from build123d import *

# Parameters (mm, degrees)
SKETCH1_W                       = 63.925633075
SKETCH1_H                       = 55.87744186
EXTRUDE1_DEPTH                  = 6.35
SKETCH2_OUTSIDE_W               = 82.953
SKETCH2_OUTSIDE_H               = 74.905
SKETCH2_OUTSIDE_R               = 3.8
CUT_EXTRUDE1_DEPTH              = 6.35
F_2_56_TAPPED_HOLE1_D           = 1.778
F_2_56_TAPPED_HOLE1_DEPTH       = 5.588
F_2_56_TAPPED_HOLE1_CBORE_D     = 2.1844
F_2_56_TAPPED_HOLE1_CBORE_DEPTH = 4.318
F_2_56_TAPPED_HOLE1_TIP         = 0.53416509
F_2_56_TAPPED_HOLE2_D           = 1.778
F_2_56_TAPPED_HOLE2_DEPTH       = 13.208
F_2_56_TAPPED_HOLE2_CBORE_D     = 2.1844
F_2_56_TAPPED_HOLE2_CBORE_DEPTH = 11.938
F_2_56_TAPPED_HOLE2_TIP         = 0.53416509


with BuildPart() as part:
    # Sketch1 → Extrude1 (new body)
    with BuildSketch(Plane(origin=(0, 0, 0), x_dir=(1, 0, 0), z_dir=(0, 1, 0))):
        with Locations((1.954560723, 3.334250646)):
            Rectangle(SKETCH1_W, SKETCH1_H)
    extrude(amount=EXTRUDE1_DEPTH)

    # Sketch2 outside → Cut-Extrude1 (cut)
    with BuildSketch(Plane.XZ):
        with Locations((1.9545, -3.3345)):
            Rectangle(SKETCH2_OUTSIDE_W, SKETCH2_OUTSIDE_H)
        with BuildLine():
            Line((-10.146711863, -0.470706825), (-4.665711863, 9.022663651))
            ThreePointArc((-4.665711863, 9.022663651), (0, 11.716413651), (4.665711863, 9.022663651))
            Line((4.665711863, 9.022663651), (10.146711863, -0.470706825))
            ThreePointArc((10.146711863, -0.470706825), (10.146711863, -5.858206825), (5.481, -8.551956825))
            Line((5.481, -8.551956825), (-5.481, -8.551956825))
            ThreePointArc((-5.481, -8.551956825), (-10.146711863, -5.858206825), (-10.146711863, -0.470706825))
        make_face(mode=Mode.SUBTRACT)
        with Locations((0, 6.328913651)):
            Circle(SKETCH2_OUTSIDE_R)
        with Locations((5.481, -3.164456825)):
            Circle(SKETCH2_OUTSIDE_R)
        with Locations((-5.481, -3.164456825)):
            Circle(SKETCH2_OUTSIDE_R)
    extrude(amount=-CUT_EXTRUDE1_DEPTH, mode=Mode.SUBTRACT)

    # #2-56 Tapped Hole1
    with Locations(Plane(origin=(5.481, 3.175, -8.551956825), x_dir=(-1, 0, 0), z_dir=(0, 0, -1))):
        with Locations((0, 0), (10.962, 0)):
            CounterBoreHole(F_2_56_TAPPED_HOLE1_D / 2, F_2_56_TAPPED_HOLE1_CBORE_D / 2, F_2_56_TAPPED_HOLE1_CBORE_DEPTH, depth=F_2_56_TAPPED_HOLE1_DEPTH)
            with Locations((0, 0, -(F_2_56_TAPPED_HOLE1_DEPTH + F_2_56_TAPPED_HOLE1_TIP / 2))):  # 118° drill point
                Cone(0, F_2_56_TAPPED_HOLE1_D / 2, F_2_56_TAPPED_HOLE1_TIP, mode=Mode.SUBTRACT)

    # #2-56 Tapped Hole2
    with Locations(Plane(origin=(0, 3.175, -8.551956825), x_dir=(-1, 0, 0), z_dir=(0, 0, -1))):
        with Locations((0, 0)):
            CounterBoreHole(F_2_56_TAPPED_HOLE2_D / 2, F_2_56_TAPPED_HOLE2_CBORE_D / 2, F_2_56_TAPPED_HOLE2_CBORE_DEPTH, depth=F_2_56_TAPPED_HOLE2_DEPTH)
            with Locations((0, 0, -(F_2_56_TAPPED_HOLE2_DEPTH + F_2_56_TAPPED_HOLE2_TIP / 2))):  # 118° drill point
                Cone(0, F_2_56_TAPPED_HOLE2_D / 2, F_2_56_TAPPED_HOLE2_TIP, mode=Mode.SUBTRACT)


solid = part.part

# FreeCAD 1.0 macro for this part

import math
import FreeCAD as App
import Part
import Sketcher
from FreeCAD import Vector
Q = App.Units.Quantity

doc = App.newDocument("Part")
body = doc.addObject("PartDesign::Body", "Body")

# Sketch on XZ plane
sketch1 = body.newObject("Sketcher::SketchObject", "Sketch")
sketch1.AttachmentSupport = (doc.getObject("XZ_Plane"), [""])
sketch1.MapMode = "FlatFace"
sketch1.addGeometry([
    Part.LineSegment(Vector(-30, -31, 0), Vector(-30, 25, 0)),
    Part.LineSegment(Vector(-30, 25, 0), Vector(34, 25, 0)),
    Part.LineSegment(Vector(34, 25, 0), Vector(34, -31, 0)),
    Part.LineSegment(Vector(34, -31, 0), Vector(-30, -31, 0)),
], False)
sketch1.addConstraint([
    Sketcher.Constraint("Coincident", 0, 2, 1, 1),
    Sketcher.Constraint("Coincident", 1, 2, 2, 1),
    Sketcher.Constraint("Coincident", 2, 2, 3, 1),
    Sketcher.Constraint("Coincident", 3, 2, 0, 1),
    Sketcher.Constraint("Vertical", 0),
    Sketcher.Constraint("Horizontal", 1),
    Sketcher.Constraint("Vertical", 2),
    Sketcher.Constraint("Horizontal", 3),
    Sketcher.Constraint("DistanceY", 0, 1, 0, 2, Q("55.877442 mm")),
    Sketcher.Constraint("DistanceX", 1, 1, 1, 2, Q("63.925633 mm")),
    Sketcher.Constraint("DistanceY", -1, 1, 0, 2, Q("24.60447 mm")),
    Sketcher.Constraint("DistanceX", 0, 2, -1, 1, Q("30.008256 mm")),
])
pad1 = body.newObject("PartDesign::Pad", "Pad")
pad1.Profile = sketch1
pad1.Length = Q("0.25 in")
pad1.Reversed = True

# Sketch on XZ plane
sketch2 = body.newObject("Sketcher::SketchObject", "Sketch001")
sketch2.AttachmentSupport = (doc.getObject("XZ_Plane"), [""])
sketch2.MapMode = "FlatFace"
sketch2.addGeometry([
    Part.LineSegment(Vector(-39.5, 34.1, 0), Vector(-39.5, -40.8, 0)),  # 0
    Part.LineSegment(Vector(-39.5, -40.8, 0), Vector(43.4, -40.8, 0)),  # 1
    Part.LineSegment(Vector(43.4, -40.8, 0), Vector(43.4, 34.1, 0)),  # 2
    Part.LineSegment(Vector(43.4, 34.1, 0), Vector(-39.5, 34.1, 0)),  # 3
    Part.ArcOfCircle(Part.Circle(Vector(-5.5, -3.2, 0), Vector(0, 0, 1), 5.4), math.radians(150), math.radians(270)),  # 4
    Part.LineSegment(Vector(-10.1, -0.5, 0), Vector(-4.7, 9, 0)),  # 5
    Part.ArcOfCircle(Part.Circle(Vector(0, 6.3, 0), Vector(0, 0, 1), 5.4), math.radians(30), math.radians(150)),  # 6
    Part.LineSegment(Vector(4.7, 9, 0), Vector(10.1, -0.5, 0)),  # 7
    Part.ArcOfCircle(Part.Circle(Vector(5.5, -3.2, 0), Vector(0, 0, 1), 5.4), math.radians(-90), math.radians(30)),  # 8
    Part.LineSegment(Vector(5.5, -8.6, 0), Vector(-5.5, -8.6, 0)),  # 9
    Part.Circle(Vector(0, 6.3, 0), Vector(0, 0, 1), 3.8),  # 10
    Part.Circle(Vector(5.5, -3.2, 0), Vector(0, 0, 1), 3.8),  # 11
    Part.Circle(Vector(-5.5, -3.2, 0), Vector(0, 0, 1), 3.8),  # 12
], False)
sketch2.addConstraint([
    Sketcher.Constraint("Coincident", 0, 2, 1, 1),
    Sketcher.Constraint("Coincident", 1, 2, 2, 1),
    Sketcher.Constraint("Coincident", 2, 2, 3, 1),
    Sketcher.Constraint("Coincident", 3, 2, 0, 1),
    Sketcher.Constraint("Tangent", 4, 1, 5, 1),
    Sketcher.Constraint("Tangent", 5, 2, 6, 2),
    Sketcher.Constraint("Tangent", 6, 1, 7, 1),
    Sketcher.Constraint("Tangent", 7, 2, 8, 2),
    Sketcher.Constraint("Tangent", 8, 1, 9, 1),
    Sketcher.Constraint("Tangent", 9, 2, 4, 2),
    Sketcher.Constraint("Vertical", 0),
    Sketcher.Constraint("Horizontal", 1),
    Sketcher.Constraint("Vertical", 2),
    Sketcher.Constraint("Horizontal", 3),
    Sketcher.Constraint("Horizontal", 9),
    Sketcher.Constraint("Coincident", 10, 3, 6, 3),
    Sketcher.Constraint("Coincident", 11, 3, 8, 3),
    Sketcher.Constraint("Coincident", 12, 3, 4, 3),
    Sketcher.Constraint("Equal", 4, 6),
    Sketcher.Constraint("Equal", 6, 8),
    Sketcher.Constraint("Equal", 10, 11),
    Sketcher.Constraint("Equal", 11, 12),
    Sketcher.Constraint("Symmetric", 5, 2, 6, 1, -2),
    Sketcher.Constraint("Angle", 5, Q("60 deg")),
    Sketcher.Constraint("Diameter", 10, Q("7.6 mm")),
    Sketcher.Constraint("Radius", 4, Q("5.3875 mm")),
    Sketcher.Constraint("DistanceX", 1, 1, 1, 2, Q("82.953 mm")),
    Sketcher.Constraint("DistanceX", 9, 2, 9, 1, Q("10.962 mm")),
    Sketcher.Constraint("DistanceY", 0, 2, 0, 1, Q("74.905 mm")),
    Sketcher.Constraint("DistanceX", 0, 2, -1, 1, Q("39.522 mm")),
    Sketcher.Constraint("DistanceY", 0, 2, -1, 1, Q("40.787 mm")),
    Sketcher.Constraint("DistanceY", 4, 3, -1, 1, Q("3.164457 mm")),
])
pocket1 = body.newObject("PartDesign::Pocket", "Pocket")
pocket1.Profile = sketch2
pocket1.Length = Q("0.25 in")

# Sketch on XY plane
sketch3 = body.newObject("Sketcher::SketchObject", "Sketch002")
sketch3.AttachmentSupport = (doc.getObject("XY_Plane"), [""])
sketch3.MapMode = "FlatFace"
sketch3.AttachmentOffset = App.Placement(Vector(0, 0, -8.551957), App.Rotation())
sketch3.addGeometry([
    Part.Circle(Vector(5.5, 3.2, 0), Vector(0, 0, 1), 0.9),
    Part.Circle(Vector(-5.5, 3.2, 0), Vector(0, 0, 1), 0.9),
], False)
sketch3.addConstraint([
    Sketcher.Constraint("Equal", 0, 1),
    Sketcher.Constraint("Symmetric", 0, 3, 1, 3, -2),
    Sketcher.Constraint("Diameter", 0, Q("0.07 in")),
    Sketcher.Constraint("DistanceY", -1, 1, 0, 3, Q("0.125 in")),
    Sketcher.Constraint("DistanceX", -1, 1, 0, 3, Q("5.481 mm")),
])
doc.recompute()
hole = body.newObject("PartDesign::Hole", "Hole")
hole.Profile = sketch3
hole.ThreadType = "None"
hole.Diameter = Q("0.07 in")
hole.DepthType = "Dimension"
hole.Depth = Q("0.22 in")
hole.DrillPoint = "Angled"
hole.DrillPointAngle = 118
hole.HoleCutType = "Counterbore"
hole.HoleCutDiameter = Q("0.086 in")
hole.HoleCutDepth = Q("0.17 in")
hole.Reversed = True

# Sketch on XY plane
sketch4 = body.newObject("Sketcher::SketchObject", "Sketch003")
sketch4.AttachmentSupport = (doc.getObject("XY_Plane"), [""])
sketch4.MapMode = "FlatFace"
sketch4.AttachmentOffset = App.Placement(Vector(0, 0, -8.551957), App.Rotation())
sketch4.addGeometry(Part.Circle(Vector(0, 3.2, 0), Vector(0, 0, 1), 0.9), False)
sketch4.addConstraint([
    Sketcher.Constraint("PointOnObject", 0, 3, -2),
    Sketcher.Constraint("Diameter", 0, Q("0.07 in")),
    Sketcher.Constraint("DistanceY", -1, 1, 0, 3, Q("0.125 in")),
])
doc.recompute()
hole2 = body.newObject("PartDesign::Hole", "Hole001")
hole2.Profile = sketch4
hole2.ThreadType = "None"
hole2.Diameter = Q("0.07 in")
hole2.DepthType = "Dimension"
hole2.Depth = Q("0.52 in")
hole2.DrillPoint = "Angled"
hole2.DrillPointAngle = 118
hole2.HoleCutType = "Counterbore"
hole2.HoleCutDiameter = Q("0.086 in")
hole2.HoleCutDepth = Q("0.47 in")
hole2.Reversed = True

doc.recompute()
